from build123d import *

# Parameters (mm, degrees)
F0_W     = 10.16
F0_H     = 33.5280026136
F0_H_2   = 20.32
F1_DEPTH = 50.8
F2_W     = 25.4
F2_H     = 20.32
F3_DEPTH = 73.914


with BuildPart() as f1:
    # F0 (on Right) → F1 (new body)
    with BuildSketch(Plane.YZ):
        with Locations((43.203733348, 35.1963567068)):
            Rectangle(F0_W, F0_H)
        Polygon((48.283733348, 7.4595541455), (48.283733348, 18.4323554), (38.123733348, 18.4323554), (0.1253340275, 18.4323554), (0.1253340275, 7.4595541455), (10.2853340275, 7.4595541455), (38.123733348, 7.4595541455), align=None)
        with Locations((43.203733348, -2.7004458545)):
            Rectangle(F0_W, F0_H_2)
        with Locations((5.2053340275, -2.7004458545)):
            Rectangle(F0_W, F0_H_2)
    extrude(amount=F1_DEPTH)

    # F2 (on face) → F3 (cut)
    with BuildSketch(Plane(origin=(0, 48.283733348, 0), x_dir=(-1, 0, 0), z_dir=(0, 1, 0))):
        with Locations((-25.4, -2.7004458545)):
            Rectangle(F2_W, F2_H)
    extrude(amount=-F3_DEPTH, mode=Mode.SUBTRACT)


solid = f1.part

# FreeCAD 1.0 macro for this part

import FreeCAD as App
import Part
import Sketcher

V = App.Vector
Q = App.Units.Quantity

doc = App.newDocument("Part")
params = doc.addObject("Spreadsheet::Sheet", "Params")
for row, (alias, value) in enumerate([
    ("sketch1_width", "0.4 in"),
    ("sketch1_height", "0.8 in"),
    ("sketch1_height2", "1.3200001 in"),
    ("sketch1_width2", "1.496 in"),
    ("sketch1_height3", "1.232 in"),
    ("pad1_length", "2 in"),
    ("sketch2_width", "1 in"),
    ("sketch2_height", "0.8 in"),
    ("pocket1_length", "2.91 in"),
], start=1):
    params.set(f"A{row}", alias)
    params.set(f"B{row}", "=" + value)
    params.setAlias(f"B{row}", alias)

body = doc.addObject("PartDesign::Body", "Body")

# Sketch on YZ plane
sketch1 = body.newObject("Sketcher::SketchObject", "Sketch")
sketch1.AttachmentSupport = (doc.getObject("YZ_Plane"), [""])
sketch1.MapMode = "FlatFace"
sketch1.addGeometry(Part.LineSegment(V(38, 52, 0), V(38, 18, 0)), False)
sketch1.addGeometry(Part.LineSegment(V(38, 18, 0), V(0, 18, 0)), False)
sketch1.addGeometry(Part.LineSegment(V(0, 18, 0), V(0, -13, 0)), False)
sketch1.addGeometry(Part.LineSegment(V(0, -13, 0), V(10, -13, 0)), False)
sketch1.addGeometry(Part.LineSegment(V(10, -13, 0), V(10, 7, 0)), False)
sketch1.addGeometry(Part.LineSegment(V(10, 7, 0), V(38, 7, 0)), False)
sketch1.addGeometry(Part.LineSegment(V(38, 7, 0), V(38, -13, 0)), False)
sketch1.addGeometry(Part.LineSegment(V(38, -13, 0), V(48, -13, 0)), False)
sketch1.addGeometry(Part.LineSegment(V(48, -13, 0), V(48, 52, 0)), False)
sketch1.addGeometry(Part.LineSegment(V(48, 52, 0), V(38, 52, 0)), False)
sketch1.addConstraint(Sketcher.Constraint("Coincident", 0, 2, 1, 1))
sketch1.addConstraint(Sketcher.Constraint("Coincident", 1, 2, 2, 1))
sketch1.addConstraint(Sketcher.Constraint("Coincident", 2, 2, 3, 1))
sketch1.addConstraint(Sketcher.Constraint("Coincident", 3, 2, 4, 1))
sketch1.addConstraint(Sketcher.Constraint("Coincident", 4, 2, 5, 1))
sketch1.addConstraint(Sketcher.Constraint("Coincident", 5, 2, 6, 1))
sketch1.addConstraint(Sketcher.Constraint("Coincident", 6, 2, 7, 1))
sketch1.addConstraint(Sketcher.Constraint("Coincident", 7, 2, 8, 1))
sketch1.addConstraint(Sketcher.Constraint("Coincident", 8, 2, 9, 1))
sketch1.addConstraint(Sketcher.Constraint("Coincident", 9, 2, 0, 1))
sketch1.addConstraint(Sketcher.Constraint("Vertical", 0))
sketch1.addConstraint(Sketcher.Constraint("Horizontal", 1))
sketch1.addConstraint(Sketcher.Constraint("Vertical", 2))
sketch1.addConstraint(Sketcher.Constraint("Horizontal", 3))
sketch1.addConstraint(Sketcher.Constraint("Vertical", 4))
sketch1.addConstraint(Sketcher.Constraint("Horizontal", 5))
sketch1.addConstraint(Sketcher.Constraint("Vertical", 6))
sketch1.addConstraint(Sketcher.Constraint("Horizontal", 7))
sketch1.addConstraint(Sketcher.Constraint("Vertical", 8))
sketch1.addConstraint(Sketcher.Constraint("Horizontal", 9))
sketch1.addConstraint(Sketcher.Constraint("Horizontal", 3, 2, 6, 2))
sketch1.addConstraint(Sketcher.Constraint("Vertical", 0, 2, 5, 2))
sketch1.addConstraint(Sketcher.Constraint("Equal", 3, 7))
sketch1.addConstraint(Sketcher.Constraint("DistanceX", 3, 1, 3, 2, Q("0.4 in")))
sketch1.addConstraint(Sketcher.Constraint("DistanceY", 4, 1, 4, 2, Q("0.8 in")))
sketch1.addConstraint(Sketcher.Constraint("DistanceY", 0, 2, 0, 1, Q("1.3200001 in")))
sketch1.addConstraint(Sketcher.Constraint("DistanceX", 1, 2, 1, 1, Q("1.496 in")))
sketch1.addConstraint(Sketcher.Constraint("DistanceY", 2, 2, 2, 1, Q("1.232 in")))
sketch1.addConstraint(Sketcher.Constraint("DistanceY", -1, 1, 8, 2, Q("51.960358 mm")))
sketch1.addConstraint(Sketcher.Constraint("DistanceX", -1, 1, 0, 2, Q("38.123733 mm")))
sketch1.setExpression("Constraints[23]", "Params.sketch1_width")
sketch1.setExpression("Constraints[24]", "Params.sketch1_height")
sketch1.setExpression("Constraints[25]", "Params.sketch1_height2")
sketch1.setExpression("Constraints[26]", "Params.sketch1_width2")
sketch1.setExpression("Constraints[27]", "Params.sketch1_height3")
pad1 = body.newObject("PartDesign::Pad", "Pad")
pad1.Profile = sketch1
pad1.setExpression("Length", "Params.pad1_length")

# Sketch on XZ plane
sketch2 = body.newObject("Sketcher::SketchObject", "Sketch001")
sketch2.AttachmentSupport = (doc.getObject("XZ_Plane"), [""])
sketch2.MapMode = "FlatFace"
sketch2.AttachmentOffset = App.Placement(V(0, 0, -48.283733), App.Rotation())
sketch2.addGeometry(Part.LineSegment(V(38, 7, 0), V(38, -13, 0)), False)
sketch2.addGeometry(Part.LineSegment(V(38, -13, 0), V(13, -13, 0)), False)
sketch2.addGeometry(Part.LineSegment(V(13, -13, 0), V(13, 7, 0)), False)
sketch2.addGeometry(Part.LineSegment(V(13, 7, 0), V(38, 7, 0)), False)
sketch2.addConstraint(Sketcher.Constraint("Coincident", 0, 2, 1, 1))
sketch2.addConstraint(Sketcher.Constraint("Coincident", 1, 2, 2, 1))
sketch2.addConstraint(Sketcher.Constraint("Coincident", 2, 2, 3, 1))
sketch2.addConstraint(Sketcher.Constraint("Coincident", 3, 2, 0, 1))
sketch2.addConstraint(Sketcher.Constraint("Vertical", 0))
sketch2.addConstraint(Sketcher.Constraint("Horizontal", 1))
sketch2.addConstraint(Sketcher.Constraint("Vertical", 2))
sketch2.addConstraint(Sketcher.Constraint("Horizontal", 3))
sketch2.addConstraint(Sketcher.Constraint("DistanceX", 1, 2, 1, 1, Q("1 in")))
sketch2.addConstraint(Sketcher.Constraint("DistanceY", 0, 2, 0, 1, Q("0.8 in")))
sketch2.addConstraint(Sketcher.Constraint("DistanceX", -1, 1, 0, 2, Q("1.5 in")))
sketch2.addConstraint(Sketcher.Constraint("DistanceY", 0, 2, -1, 1, Q("12.860446 mm")))
sketch2.setExpression("Constraints[8]", "Params.sketch2_width")
sketch2.setExpression("Constraints[9]", "Params.sketch2_height")
pocket1 = body.newObject("PartDesign::Pocket", "Pocket")
pocket1.Profile = sketch2
pocket1.setExpression("Length", "Params.pocket1_length")
pocket1.Reversed = True

doc.recompute()
